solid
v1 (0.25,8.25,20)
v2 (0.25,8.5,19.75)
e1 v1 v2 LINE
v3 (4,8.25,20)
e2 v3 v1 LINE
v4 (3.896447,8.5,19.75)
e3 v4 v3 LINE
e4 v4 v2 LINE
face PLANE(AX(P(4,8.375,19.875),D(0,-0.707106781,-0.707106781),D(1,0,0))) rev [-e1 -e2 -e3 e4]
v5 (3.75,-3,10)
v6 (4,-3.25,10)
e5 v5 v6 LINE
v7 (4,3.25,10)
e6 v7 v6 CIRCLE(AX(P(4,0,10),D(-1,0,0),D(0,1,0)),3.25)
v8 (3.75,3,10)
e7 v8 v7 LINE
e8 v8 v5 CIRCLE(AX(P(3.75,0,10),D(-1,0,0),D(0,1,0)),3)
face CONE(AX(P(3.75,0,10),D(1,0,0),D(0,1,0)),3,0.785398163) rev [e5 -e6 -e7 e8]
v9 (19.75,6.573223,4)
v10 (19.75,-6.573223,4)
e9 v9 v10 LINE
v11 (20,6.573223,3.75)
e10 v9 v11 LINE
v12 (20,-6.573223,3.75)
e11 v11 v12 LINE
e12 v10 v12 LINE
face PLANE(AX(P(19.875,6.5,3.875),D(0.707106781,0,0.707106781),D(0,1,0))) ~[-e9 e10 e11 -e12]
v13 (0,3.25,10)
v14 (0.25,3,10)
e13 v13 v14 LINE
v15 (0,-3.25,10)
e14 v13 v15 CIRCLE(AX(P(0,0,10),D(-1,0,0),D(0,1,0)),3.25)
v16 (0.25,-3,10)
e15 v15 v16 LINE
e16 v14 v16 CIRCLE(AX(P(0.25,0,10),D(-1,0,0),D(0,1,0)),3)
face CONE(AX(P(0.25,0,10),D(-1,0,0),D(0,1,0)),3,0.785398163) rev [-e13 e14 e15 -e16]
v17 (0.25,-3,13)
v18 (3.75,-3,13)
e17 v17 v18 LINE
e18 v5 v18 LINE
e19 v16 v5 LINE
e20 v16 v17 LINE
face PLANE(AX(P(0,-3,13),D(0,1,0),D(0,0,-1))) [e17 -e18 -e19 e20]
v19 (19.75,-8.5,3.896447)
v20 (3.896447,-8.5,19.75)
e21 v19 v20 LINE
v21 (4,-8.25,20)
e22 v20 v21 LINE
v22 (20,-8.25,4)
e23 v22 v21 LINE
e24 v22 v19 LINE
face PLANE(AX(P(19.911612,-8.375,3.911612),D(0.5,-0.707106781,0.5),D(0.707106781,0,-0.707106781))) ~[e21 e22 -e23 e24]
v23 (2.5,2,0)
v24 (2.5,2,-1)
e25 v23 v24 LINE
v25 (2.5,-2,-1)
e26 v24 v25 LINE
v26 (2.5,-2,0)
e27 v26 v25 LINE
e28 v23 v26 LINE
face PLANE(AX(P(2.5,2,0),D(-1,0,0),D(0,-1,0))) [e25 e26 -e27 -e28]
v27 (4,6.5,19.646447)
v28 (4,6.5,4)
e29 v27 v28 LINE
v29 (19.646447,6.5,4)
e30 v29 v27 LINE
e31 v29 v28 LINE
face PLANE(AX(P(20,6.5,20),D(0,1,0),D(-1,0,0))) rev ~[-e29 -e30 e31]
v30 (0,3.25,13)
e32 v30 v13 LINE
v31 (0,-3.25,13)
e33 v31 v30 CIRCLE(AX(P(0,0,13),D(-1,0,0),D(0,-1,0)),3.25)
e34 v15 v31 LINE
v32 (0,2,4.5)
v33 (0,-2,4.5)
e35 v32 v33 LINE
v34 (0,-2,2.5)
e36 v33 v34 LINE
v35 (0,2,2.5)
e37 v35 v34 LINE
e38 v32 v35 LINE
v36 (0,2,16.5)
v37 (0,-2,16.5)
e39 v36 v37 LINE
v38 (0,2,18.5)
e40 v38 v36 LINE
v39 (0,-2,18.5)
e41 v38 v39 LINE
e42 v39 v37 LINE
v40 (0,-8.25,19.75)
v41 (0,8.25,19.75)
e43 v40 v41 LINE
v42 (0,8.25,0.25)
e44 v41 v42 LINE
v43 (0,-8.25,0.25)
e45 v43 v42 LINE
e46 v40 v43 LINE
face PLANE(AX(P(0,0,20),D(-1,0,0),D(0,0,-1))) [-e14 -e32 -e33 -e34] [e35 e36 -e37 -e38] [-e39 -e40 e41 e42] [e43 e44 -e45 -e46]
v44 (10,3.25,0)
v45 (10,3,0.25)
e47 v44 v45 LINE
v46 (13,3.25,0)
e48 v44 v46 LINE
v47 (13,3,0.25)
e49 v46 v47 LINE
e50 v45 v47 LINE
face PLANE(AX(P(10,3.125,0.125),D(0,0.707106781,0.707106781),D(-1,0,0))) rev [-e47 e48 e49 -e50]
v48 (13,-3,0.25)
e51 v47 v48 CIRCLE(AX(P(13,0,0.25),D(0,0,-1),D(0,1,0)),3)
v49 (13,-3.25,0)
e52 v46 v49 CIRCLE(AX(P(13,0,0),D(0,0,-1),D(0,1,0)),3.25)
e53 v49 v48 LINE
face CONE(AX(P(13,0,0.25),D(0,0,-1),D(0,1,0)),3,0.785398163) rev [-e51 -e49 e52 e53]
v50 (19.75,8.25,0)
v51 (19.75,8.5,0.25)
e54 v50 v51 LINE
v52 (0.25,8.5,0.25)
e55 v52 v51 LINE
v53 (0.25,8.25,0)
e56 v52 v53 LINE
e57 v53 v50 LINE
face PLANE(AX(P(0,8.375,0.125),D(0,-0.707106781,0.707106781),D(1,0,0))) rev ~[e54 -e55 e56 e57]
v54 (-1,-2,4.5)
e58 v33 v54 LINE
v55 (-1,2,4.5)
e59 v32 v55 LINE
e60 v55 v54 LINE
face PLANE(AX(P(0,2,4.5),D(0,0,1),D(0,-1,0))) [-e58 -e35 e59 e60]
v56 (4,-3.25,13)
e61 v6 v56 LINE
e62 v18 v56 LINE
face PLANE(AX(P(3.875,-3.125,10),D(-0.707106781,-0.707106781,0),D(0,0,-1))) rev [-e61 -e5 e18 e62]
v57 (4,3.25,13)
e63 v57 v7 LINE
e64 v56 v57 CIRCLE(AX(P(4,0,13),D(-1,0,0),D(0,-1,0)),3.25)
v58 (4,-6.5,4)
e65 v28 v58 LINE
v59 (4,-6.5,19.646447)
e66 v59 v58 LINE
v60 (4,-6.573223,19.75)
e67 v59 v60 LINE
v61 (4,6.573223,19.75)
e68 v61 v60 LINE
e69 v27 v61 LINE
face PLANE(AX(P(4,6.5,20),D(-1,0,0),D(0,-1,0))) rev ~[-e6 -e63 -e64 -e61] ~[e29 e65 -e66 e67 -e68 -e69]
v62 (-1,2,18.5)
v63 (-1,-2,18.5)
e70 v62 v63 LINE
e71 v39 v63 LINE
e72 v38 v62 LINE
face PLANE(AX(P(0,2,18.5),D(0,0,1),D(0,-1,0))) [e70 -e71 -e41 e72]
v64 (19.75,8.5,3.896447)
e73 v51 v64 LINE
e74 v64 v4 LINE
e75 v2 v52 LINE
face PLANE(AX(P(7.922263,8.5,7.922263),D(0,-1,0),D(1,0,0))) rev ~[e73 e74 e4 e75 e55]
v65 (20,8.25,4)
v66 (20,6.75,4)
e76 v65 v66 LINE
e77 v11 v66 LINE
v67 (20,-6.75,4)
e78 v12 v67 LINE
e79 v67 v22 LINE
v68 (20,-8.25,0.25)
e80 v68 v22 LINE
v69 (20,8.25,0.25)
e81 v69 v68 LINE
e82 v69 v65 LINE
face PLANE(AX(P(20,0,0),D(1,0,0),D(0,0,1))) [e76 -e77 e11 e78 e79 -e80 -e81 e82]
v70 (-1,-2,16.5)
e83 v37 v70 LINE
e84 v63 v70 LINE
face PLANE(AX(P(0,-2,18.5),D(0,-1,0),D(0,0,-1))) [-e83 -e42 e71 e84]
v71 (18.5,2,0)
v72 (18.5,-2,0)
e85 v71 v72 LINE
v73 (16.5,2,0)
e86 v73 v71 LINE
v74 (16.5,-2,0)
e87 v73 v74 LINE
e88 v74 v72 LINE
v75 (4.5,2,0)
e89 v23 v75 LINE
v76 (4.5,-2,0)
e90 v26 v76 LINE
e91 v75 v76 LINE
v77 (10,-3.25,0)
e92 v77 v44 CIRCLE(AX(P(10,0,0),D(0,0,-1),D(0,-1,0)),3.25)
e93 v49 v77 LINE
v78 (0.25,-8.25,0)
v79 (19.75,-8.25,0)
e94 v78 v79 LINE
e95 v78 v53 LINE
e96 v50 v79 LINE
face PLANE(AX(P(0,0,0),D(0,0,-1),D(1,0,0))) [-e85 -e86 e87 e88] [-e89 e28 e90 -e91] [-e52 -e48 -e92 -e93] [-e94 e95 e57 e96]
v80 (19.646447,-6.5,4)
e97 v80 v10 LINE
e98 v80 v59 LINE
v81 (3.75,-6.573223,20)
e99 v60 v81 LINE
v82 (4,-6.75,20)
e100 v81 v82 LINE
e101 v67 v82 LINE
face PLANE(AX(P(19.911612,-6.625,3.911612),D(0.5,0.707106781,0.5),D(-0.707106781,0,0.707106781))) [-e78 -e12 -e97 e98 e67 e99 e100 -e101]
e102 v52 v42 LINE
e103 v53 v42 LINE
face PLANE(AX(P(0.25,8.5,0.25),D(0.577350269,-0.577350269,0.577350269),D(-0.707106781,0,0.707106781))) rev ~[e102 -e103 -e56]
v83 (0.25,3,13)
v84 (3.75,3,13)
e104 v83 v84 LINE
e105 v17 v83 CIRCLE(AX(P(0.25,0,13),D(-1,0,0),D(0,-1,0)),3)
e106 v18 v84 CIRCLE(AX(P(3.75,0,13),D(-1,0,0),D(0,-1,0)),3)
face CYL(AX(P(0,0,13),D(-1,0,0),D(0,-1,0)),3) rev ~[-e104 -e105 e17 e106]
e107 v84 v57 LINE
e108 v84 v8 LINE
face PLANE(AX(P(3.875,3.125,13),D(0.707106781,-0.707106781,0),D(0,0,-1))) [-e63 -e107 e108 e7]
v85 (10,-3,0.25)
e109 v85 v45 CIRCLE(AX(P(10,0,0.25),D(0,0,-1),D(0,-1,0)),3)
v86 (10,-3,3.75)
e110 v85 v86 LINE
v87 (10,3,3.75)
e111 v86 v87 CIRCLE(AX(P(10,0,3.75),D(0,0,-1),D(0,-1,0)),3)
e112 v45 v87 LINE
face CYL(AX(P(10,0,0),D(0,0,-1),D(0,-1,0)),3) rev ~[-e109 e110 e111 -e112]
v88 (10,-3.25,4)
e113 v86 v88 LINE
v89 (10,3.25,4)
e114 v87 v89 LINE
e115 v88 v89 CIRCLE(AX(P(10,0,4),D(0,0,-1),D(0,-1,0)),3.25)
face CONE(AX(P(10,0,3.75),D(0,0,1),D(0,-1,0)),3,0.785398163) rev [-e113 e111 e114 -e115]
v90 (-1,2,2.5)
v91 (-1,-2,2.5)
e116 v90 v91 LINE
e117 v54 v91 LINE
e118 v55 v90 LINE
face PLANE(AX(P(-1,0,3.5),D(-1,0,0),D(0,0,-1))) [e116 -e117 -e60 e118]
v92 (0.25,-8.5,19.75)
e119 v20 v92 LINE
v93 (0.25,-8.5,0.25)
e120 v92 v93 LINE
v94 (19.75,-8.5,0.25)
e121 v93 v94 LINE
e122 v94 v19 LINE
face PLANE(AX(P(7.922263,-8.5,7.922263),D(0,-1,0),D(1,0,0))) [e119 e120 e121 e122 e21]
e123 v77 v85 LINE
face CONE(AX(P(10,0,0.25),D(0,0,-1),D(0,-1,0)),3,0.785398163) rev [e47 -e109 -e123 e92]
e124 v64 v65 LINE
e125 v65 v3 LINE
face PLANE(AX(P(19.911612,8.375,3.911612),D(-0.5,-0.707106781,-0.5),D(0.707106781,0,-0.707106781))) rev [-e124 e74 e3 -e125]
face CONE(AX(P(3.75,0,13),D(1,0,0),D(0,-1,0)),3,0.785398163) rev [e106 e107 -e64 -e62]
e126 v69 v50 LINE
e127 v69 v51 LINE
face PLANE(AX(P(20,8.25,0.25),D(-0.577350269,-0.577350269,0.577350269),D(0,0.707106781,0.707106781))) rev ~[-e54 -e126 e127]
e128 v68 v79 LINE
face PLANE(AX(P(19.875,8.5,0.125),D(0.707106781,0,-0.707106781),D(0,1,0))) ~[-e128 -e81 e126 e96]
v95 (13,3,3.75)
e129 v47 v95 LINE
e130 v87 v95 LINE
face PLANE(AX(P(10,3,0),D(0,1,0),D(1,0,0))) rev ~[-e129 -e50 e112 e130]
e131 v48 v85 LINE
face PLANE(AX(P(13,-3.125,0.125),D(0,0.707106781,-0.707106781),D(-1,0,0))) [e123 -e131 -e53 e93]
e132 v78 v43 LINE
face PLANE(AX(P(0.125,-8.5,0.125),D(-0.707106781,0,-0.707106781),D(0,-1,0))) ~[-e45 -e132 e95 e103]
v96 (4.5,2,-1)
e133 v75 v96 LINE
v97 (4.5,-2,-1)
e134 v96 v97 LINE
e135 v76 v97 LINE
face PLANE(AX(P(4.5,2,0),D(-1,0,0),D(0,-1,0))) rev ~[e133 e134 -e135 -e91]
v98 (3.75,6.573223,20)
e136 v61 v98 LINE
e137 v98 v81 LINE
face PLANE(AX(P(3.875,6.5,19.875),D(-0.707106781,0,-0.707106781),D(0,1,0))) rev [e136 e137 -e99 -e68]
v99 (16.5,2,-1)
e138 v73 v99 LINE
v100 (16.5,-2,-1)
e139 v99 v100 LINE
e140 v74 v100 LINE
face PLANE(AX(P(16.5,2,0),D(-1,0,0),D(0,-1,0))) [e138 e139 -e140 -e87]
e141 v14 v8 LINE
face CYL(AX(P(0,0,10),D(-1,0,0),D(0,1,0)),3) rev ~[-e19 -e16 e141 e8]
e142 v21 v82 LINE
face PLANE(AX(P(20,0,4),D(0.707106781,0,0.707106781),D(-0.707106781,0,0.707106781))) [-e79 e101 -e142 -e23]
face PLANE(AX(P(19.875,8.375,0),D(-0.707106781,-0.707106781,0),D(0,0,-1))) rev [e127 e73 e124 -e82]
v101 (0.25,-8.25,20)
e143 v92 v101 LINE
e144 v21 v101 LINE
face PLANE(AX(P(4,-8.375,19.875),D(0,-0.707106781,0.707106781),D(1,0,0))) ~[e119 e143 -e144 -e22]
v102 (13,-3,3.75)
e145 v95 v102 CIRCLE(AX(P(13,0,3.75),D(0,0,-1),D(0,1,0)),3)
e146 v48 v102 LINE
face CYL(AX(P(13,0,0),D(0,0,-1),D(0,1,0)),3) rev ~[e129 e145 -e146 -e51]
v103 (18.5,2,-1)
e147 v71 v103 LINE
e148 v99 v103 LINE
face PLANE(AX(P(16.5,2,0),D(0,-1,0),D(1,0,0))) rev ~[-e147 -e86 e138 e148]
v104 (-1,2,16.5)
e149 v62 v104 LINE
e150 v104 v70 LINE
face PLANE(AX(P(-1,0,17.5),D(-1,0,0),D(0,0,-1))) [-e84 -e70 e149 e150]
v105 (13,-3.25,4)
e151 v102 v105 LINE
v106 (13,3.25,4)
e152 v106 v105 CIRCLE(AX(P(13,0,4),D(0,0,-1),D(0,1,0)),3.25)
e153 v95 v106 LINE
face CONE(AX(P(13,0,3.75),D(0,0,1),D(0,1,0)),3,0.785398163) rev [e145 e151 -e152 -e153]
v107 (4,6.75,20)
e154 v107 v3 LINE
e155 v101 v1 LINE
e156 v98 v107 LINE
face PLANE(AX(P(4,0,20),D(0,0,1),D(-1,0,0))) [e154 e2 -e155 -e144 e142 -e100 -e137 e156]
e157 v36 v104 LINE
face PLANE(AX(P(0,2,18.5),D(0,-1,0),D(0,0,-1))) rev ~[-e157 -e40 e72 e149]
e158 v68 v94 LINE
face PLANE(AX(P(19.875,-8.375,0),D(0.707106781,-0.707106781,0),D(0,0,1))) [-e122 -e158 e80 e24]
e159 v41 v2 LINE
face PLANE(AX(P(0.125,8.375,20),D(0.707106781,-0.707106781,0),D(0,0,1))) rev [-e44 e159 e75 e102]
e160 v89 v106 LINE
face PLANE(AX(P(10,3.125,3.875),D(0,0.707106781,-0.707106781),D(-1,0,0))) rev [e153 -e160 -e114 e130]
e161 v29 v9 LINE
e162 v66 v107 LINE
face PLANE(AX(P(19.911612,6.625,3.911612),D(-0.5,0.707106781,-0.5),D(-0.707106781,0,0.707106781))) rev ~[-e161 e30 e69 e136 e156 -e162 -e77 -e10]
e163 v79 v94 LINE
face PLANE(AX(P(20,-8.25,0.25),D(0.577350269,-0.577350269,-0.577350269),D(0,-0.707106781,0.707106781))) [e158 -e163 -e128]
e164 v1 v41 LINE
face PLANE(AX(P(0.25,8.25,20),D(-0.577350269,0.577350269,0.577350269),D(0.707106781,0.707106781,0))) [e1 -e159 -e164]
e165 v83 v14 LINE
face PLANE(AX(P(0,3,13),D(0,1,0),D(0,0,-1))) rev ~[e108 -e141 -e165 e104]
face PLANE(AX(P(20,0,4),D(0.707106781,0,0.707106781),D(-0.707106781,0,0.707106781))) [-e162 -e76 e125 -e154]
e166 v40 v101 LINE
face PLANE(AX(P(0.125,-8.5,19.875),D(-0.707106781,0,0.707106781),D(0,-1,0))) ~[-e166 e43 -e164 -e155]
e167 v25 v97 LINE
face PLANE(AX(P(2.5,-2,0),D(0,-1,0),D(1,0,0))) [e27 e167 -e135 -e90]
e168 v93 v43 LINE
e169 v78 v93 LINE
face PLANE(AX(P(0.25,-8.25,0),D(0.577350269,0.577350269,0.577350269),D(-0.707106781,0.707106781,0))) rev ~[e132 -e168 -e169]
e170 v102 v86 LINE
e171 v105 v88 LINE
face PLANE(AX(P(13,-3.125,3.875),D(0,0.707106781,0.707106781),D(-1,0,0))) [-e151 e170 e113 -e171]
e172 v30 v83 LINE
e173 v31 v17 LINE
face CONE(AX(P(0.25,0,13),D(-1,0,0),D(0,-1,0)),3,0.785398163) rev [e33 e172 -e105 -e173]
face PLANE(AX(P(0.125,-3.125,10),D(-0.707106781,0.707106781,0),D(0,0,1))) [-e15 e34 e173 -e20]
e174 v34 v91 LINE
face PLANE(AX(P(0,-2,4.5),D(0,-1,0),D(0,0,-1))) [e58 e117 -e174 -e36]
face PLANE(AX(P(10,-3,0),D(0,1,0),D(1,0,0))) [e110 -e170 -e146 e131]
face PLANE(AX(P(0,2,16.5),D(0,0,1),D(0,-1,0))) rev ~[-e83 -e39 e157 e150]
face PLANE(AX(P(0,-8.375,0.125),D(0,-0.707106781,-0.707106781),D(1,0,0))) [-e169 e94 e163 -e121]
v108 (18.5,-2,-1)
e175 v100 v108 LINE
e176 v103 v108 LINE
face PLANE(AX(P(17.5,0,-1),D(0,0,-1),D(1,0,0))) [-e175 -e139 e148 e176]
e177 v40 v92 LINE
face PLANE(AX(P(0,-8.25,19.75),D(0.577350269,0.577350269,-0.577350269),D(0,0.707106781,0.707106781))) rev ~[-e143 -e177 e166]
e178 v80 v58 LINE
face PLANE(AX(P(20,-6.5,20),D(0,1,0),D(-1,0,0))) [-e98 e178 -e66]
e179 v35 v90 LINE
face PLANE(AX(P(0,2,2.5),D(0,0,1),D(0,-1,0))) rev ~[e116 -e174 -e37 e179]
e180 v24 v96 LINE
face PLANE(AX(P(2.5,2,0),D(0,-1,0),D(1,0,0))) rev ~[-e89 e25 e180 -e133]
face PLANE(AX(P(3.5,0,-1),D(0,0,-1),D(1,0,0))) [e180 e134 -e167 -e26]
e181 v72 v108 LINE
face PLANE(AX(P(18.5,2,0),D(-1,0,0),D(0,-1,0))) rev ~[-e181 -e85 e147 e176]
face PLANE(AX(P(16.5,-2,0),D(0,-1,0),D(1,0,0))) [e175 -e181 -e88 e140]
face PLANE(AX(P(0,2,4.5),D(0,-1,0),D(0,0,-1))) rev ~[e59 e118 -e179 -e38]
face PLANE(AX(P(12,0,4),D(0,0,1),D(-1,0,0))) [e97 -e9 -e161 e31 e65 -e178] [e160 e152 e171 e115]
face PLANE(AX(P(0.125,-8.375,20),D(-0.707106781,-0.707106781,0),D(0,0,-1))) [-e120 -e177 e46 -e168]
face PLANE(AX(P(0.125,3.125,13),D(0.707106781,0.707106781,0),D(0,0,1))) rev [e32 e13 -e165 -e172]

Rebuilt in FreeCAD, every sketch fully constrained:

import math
import FreeCAD as App
import Part
import Sketcher
Q = App.Units.Quantity


def edges_at(feature, points):
    """Names of the edges that pass closest to the given points."""
    edges = feature.Shape.Edges
    near = lambda p: min(range(len(edges)), key=lambda i: edges[i].distToShape(Part.Vertex(*p))[0])
    return sorted({f"Edge{near(p) + 1}" for p in points})


def add_polygon(sketch, points):
    """Adds a closed chain of lines whose ends are joined by coincident constraints."""
    first, n = sketch.GeometryCount, len(points)
    for a, b in zip(points, points[1:] + points[:1]):
        sketch.addGeometry(Part.LineSegment(App.Vector(*a, 0), App.Vector(*b, 0)), False)
    for i in range(n):
        sketch.addConstraint(Sketcher.Constraint("Coincident", first + i, 2, first + (i + 1) % n, 1))

doc = App.newDocument("Part")
body = doc.addObject("PartDesign::Body", "Body")

# Sketch on XZ plane
sketch1 = body.newObject("Sketcher::SketchObject", "Sketch")
sketch1.AttachmentSupport = (doc.getObject("XZ_Plane"), [""])
sketch1.MapMode = "FlatFace"
add_polygon(sketch1, [(0, 0), (20, 0), (20, 4), (4, 20), (0, 20)])  # lines 0-4
sketch1.addConstraint(Sketcher.Constraint("Horizontal", 0))
sketch1.addConstraint(Sketcher.Constraint("Vertical", 1))
sketch1.addConstraint(Sketcher.Constraint("Horizontal", 3))
sketch1.addConstraint(Sketcher.Constraint("Vertical", 4))
sketch1.addConstraint(Sketcher.Constraint("Coincident", 4, 2, -1, 1))
sketch1.addConstraint(Sketcher.Constraint("Equal", 3, 1))
sketch1.addConstraint(Sketcher.Constraint("Equal", 0, 4))
sketch1.addConstraint(Sketcher.Constraint("DistanceX", 0, 1, 0, 2, Q("20 mm")))
sketch1.addConstraint(Sketcher.Constraint("DistanceX", 3, 2, 3, 1, Q("4 mm")))
pad1 = body.newObject("PartDesign::Pad", "Pad")
pad1.Profile = sketch1
pad1.Length = 17
pad1.Midplane = True

# Sketch on XY plane
sketch2 = body.newObject("Sketcher::SketchObject", "Sketch001")
sketch2.AttachmentSupport = (doc.getObject("XY_Plane"), [""])
sketch2.MapMode = "FlatFace"
sketch2.AttachmentOffset = App.Placement(App.Vector(0, 0, 20), App.Rotation())
add_polygon(sketch2, [(20, -6), (20, 6), (4, 6), (4, -6)])  # lines 0-3
sketch2.addConstraint(Sketcher.Constraint("Vertical", 0))
sketch2.addConstraint(Sketcher.Constraint("Horizontal", 1))
sketch2.addConstraint(Sketcher.Constraint("Vertical", 2))
sketch2.addConstraint(Sketcher.Constraint("Horizontal", 3))
sketch2.addConstraint(Sketcher.Constraint("DistanceX", 1, 2, 1, 1, Q("16 mm")))
sketch2.addConstraint(Sketcher.Constraint("DistanceY", 0, 1, 0, 2, Q("13 mm")))
sketch2.addConstraint(Sketcher.Constraint("DistanceX", -1, 1, 0, 2, Q("20 mm")))
sketch2.addConstraint(Sketcher.Constraint("DistanceY", -1, 1, 0, 2, Q("6.5 mm")))
pocket1 = body.newObject("PartDesign::Pocket", "Pocket")
pocket1.Profile = sketch2
pocket1.Length = 16

# Sketch on YZ plane
sketch3 = body.newObject("Sketcher::SketchObject", "Sketch002")
sketch3.AttachmentSupport = (doc.getObject("YZ_Plane"), [""])
sketch3.MapMode = "FlatFace"
sketch3.addGeometry(Part.ArcOfCircle(Part.Circle(App.Vector(0, 13, 0), App.Vector(0, 0, 1), 3), math.radians(0), math.radians(180)), False)
sketch3.addGeometry(Part.LineSegment(App.Vector(3, 13, 0), App.Vector(3, 10, 0)), False)
sketch3.addGeometry(Part.ArcOfCircle(Part.Circle(App.Vector(0, 10, 0), App.Vector(0, 0, 1), 3), math.radians(180), math.radians(360)), False)
sketch3.addGeometry(Part.LineSegment(App.Vector(-3, 10, 0), App.Vector(-3, 13, 0)), False)
sketch3.addConstraint(Sketcher.Constraint("Tangent", 0, 1, 1, 1))
sketch3.addConstraint(Sketcher.Constraint("Tangent", 1, 2, 2, 2))
sketch3.addConstraint(Sketcher.Constraint("Tangent", 2, 1, 3, 1))
sketch3.addConstraint(Sketcher.Constraint("Tangent", 3, 2, 0, 2))
sketch3.addConstraint(Sketcher.Constraint("Vertical", 1))
sketch3.addConstraint(Sketcher.Constraint("Vertical", 3))
sketch3.addConstraint(Sketcher.Constraint("PointOnObject", 0, 3, -2))
sketch3.addConstraint(Sketcher.Constraint("Radius", 0, Q("3 mm")))
sketch3.addConstraint(Sketcher.Constraint("DistanceY", 1, 2, 1, 1, Q("3 mm")))
sketch3.addConstraint(Sketcher.Constraint("DistanceY", -1, 1, 0, 3, Q("13 mm")))
pocket2 = body.newObject("PartDesign::Pocket", "Pocket001")
pocket2.Profile = sketch3
pocket2.Length = 5
pocket2.Reversed = True

# Sketch on XY plane
sketch4 = body.newObject("Sketcher::SketchObject", "Sketch003")
sketch4.AttachmentSupport = (doc.getObject("XY_Plane"), [""])
sketch4.MapMode = "FlatFace"
sketch4.addGeometry(Part.ArcOfCircle(Part.Circle(App.Vector(10, 0, 0), App.Vector(0, 0, 1), 3), math.radians(90), math.radians(270)), False)
sketch4.addGeometry(Part.LineSegment(App.Vector(10, 3, 0), App.Vector(13, 3, 0)), False)
sketch4.addGeometry(Part.ArcOfCircle(Part.Circle(App.Vector(13, 0, 0), App.Vector(0, 0, 1), 3), math.radians(-90), math.radians(90)), False)
sketch4.addGeometry(Part.LineSegment(App.Vector(13, -3, 0), App.Vector(10, -3, 0)), False)
sketch4.addConstraint(Sketcher.Constraint("Tangent", 0, 1, 1, 1))
sketch4.addConstraint(Sketcher.Constraint("Tangent", 1, 2, 2, 2))
sketch4.addConstraint(Sketcher.Constraint("Tangent", 2, 1, 3, 1))
sketch4.addConstraint(Sketcher.Constraint("Tangent", 3, 2, 0, 2))
sketch4.addConstraint(Sketcher.Constraint("Horizontal", 1))
sketch4.addConstraint(Sketcher.Constraint("Horizontal", 3))
sketch4.addConstraint(Sketcher.Constraint("PointOnObject", 0, 3, -1))
sketch4.addConstraint(Sketcher.Constraint("Radius", 0, Q("3 mm")))
sketch4.addConstraint(Sketcher.Constraint("DistanceX", 1, 1, 1, 2, Q("3 mm")))
sketch4.addConstraint(Sketcher.Constraint("DistanceX", -1, 1, 0, 3, Q("10 mm")))
pocket3 = body.newObject("PartDesign::Pocket", "Pocket002")
pocket3.Profile = sketch4
pocket3.Length = 5
pocket3.Reversed = True

# Sketch on XY plane
sketch5 = body.newObject("Sketcher::SketchObject", "Sketch004")
sketch5.AttachmentSupport = (doc.getObject("XY_Plane"), [""])
sketch5.MapMode = "FlatFace"
add_polygon(sketch5, [(2.5, -2), (2.5, 2), (4.5, 2), (4.5, -2)])  # lines 0-3
add_polygon(sketch5, [(16.5, -2), (16.5, 2), (18.5, 2), (18.5, -2)])  # lines 4-7
sketch5.addConstraint(Sketcher.Constraint("Vertical", 0))
sketch5.addConstraint(Sketcher.Constraint("Horizontal", 1))
sketch5.addConstraint(Sketcher.Constraint("Vertical", 2))
sketch5.addConstraint(Sketcher.Constraint("Horizontal", 3))
sketch5.addConstraint(Sketcher.Constraint("Vertical", 4))
sketch5.addConstraint(Sketcher.Constraint("Horizontal", 5))
sketch5.addConstraint(Sketcher.Constraint("Vertical", 6))
sketch5.addConstraint(Sketcher.Constraint("Horizontal", 7))
sketch5.addConstraint(Sketcher.Constraint("Horizontal", 1, 2, 4, 2))
sketch5.addConstraint(Sketcher.Constraint("Horizontal", 3, 2, 6, 2))
sketch5.addConstraint(Sketcher.Constraint("Equal", 3, 5))
sketch5.addConstraint(Sketcher.Constraint("DistanceX", 1, 1, 1, 2, Q("2 mm")))
sketch5.addConstraint(Sketcher.Constraint("DistanceY", 0, 1, 0, 2, Q("4 mm")))
sketch5.addConstraint(Sketcher.Constraint("DistanceY", -1, 1, 0, 2, Q("2 mm")))
sketch5.addConstraint(Sketcher.Constraint("DistanceX", 1, 2, 4, 2, Q("12 mm")))
sketch5.addConstraint(Sketcher.Constraint("DistanceX", -1, 1, 0, 2, Q("2.5 mm")))
pad2 = body.newObject("PartDesign::Pad", "Pad001")
pad2.Profile = sketch5
pad2.Length = 1
pad2.Reversed = True

# Sketch on YZ plane
sketch6 = body.newObject("Sketcher::SketchObject", "Sketch005")
sketch6.AttachmentSupport = (doc.getObject("YZ_Plane"), [""])
sketch6.MapMode = "FlatFace"
add_polygon(sketch6, [(-2, 18.5), (2, 18.5), (2, 16.5), (-2, 16.5)])  # lines 0-3
add_polygon(sketch6, [(-2, 4.5), (2, 4.5), (2, 2.5), (-2, 2.5)])  # lines 4-7
sketch6.addConstraint(Sketcher.Constraint("Horizontal", 0))
sketch6.addConstraint(Sketcher.Constraint("Vertical", 1))
sketch6.addConstraint(Sketcher.Constraint("Horizontal", 2))
sketch6.addConstraint(Sketcher.Constraint("Vertical", 3))
sketch6.addConstraint(Sketcher.Constraint("Horizontal", 4))
sketch6.addConstraint(Sketcher.Constraint("Vertical", 5))
sketch6.addConstraint(Sketcher.Constraint("Horizontal", 6))
sketch6.addConstraint(Sketcher.Constraint("Vertical", 7))
sketch6.addConstraint(Sketcher.Constraint("Vertical", 1, 2, 4, 2))
sketch6.addConstraint(Sketcher.Constraint("Vertical", 3, 2, 6, 2))
sketch6.addConstraint(Sketcher.Constraint("Equal", 3, 5))
sketch6.addConstraint(Sketcher.Constraint("DistanceX", 0, 1, 0, 2, Q("4 mm")))
sketch6.addConstraint(Sketcher.Constraint("DistanceY", 1, 2, 1, 1, Q("2 mm")))
sketch6.addConstraint(Sketcher.Constraint("DistanceX", -1, 1, 0, 2, Q("2 mm")))
sketch6.addConstraint(Sketcher.Constraint("DistanceY", 4, 2, 1, 2, Q("12 mm")))
sketch6.addConstraint(Sketcher.Constraint("DistanceY", -1, 1, 0, 2, Q("18.5 mm")))
pad3 = body.newObject("PartDesign::Pad", "Pad002")
pad3.Profile = sketch6
pad3.Length = 1
pad3.Reversed = True
doc.recompute()

chamfer = body.newObject("PartDesign::Chamfer", "Chamfer")
chamfer.Base = (pad3, edges_at(pad3, [
    (2, -8.5, 20),
    (0, -8.5, 10),
    (10, -8.5, 0),
    (0, 0, 0),
    (10, 8.5, 0),
    (0, 8.5, 10),
    (20, 0, 0),
    (20, 8.5, 2),
    (20, -8.5, 2),
    (16, 0, 4),
    (16, 0, 0),
    (0, 0, 7),
    (0, 0, 20),
    (2, 8.5, 20),
    (12, -8.5, 12),
    (12, 8.5, 12),
    (20, 0, 4),
    (4, 0, 16),
    (4, 0, 20),
]))
chamfer.Size = 0.25
doc.recompute()

chamfer2 = body.newObject("PartDesign::Chamfer", "Chamfer001")
chamfer2.Base = (chamfer, edges_at(chamfer, [(12, -6.5, 12)]))
chamfer2.Size = 0.25
doc.recompute()

chamfer3 = body.newObject("PartDesign::Chamfer", "Chamfer002")
chamfer3.Base = (chamfer2, edges_at(chamfer2, [(12, 6.5, 12)]))
chamfer3.Size = 0.25

doc.recompute()
